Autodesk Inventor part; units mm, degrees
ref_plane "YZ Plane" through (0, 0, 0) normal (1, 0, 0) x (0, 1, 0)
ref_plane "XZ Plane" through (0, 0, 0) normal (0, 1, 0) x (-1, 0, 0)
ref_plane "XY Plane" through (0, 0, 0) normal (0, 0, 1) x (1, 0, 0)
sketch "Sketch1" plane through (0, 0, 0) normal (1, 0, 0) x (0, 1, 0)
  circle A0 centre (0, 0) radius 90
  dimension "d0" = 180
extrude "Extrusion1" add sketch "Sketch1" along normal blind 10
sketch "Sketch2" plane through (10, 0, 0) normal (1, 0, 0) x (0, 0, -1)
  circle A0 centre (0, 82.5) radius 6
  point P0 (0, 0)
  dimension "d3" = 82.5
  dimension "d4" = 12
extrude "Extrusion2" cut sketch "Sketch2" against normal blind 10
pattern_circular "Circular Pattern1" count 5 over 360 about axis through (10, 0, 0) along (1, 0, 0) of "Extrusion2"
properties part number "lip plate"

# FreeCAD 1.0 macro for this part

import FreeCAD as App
import Part
import Sketcher

V = App.Vector

doc = App.newDocument("Part")
body = doc.addObject("PartDesign::Body", "Body")

# Sketch on YZ plane
sketch1 = doc.addObject("Sketcher::SketchObject", "Sketch")
body.addObject(sketch1)
sketch1.AttachmentSupport = (doc.YZ_Plane, [""])
sketch1.MapMode = "FlatFace"
sketch1.addGeometry(Part.Circle(V(0, 0, 0), V(0, 0, 1), 90), False)
sketch1.addConstraint([
    Sketcher.Constraint("Coincident", 0, 3, -1, 1),
    Sketcher.Constraint("Diameter", 0, 180.0),
])
pad1 = doc.addObject("PartDesign::Pad", "Pad")
body.addObject(pad1)
pad1.Profile = sketch1
pad1.Length = 10

# Sketch on YZ plane
sketch2 = doc.addObject("Sketcher::SketchObject", "Sketch001")
body.addObject(sketch2)
sketch2.AttachmentSupport = (doc.YZ_Plane, [""])
sketch2.MapMode = "FlatFace"
sketch2.AttachmentOffset = App.Placement(V(0, 0, 10), App.Rotation())
sketch2.addGeometry(Part.Circle(V(82, 0, 0), V(0, 0, 1), 6), False)
sketch2.addConstraint([
    Sketcher.Constraint("PointOnObject", 0, 3, -1),
    Sketcher.Constraint("Diameter", 0, 12.0),
    Sketcher.Constraint("DistanceX", -1, 1, 0, 3, 82.5),
])
pocket1 = doc.addObject("PartDesign::Pocket", "Pocket")
body.addObject(pocket1)
pocket1.Profile = sketch2
pocket1.Length = 10
doc.recompute()

polarpattern = doc.addObject("PartDesign::PolarPattern", "PolarPattern")
body.addObject(polarpattern)
polarpattern.Originals = [pocket1]
polarpattern.Axis = (doc.X_Axis, [""])
polarpattern.Angle = 360
polarpattern.Occurrences = 5
body.Tip = polarpattern

doc.recompute()
